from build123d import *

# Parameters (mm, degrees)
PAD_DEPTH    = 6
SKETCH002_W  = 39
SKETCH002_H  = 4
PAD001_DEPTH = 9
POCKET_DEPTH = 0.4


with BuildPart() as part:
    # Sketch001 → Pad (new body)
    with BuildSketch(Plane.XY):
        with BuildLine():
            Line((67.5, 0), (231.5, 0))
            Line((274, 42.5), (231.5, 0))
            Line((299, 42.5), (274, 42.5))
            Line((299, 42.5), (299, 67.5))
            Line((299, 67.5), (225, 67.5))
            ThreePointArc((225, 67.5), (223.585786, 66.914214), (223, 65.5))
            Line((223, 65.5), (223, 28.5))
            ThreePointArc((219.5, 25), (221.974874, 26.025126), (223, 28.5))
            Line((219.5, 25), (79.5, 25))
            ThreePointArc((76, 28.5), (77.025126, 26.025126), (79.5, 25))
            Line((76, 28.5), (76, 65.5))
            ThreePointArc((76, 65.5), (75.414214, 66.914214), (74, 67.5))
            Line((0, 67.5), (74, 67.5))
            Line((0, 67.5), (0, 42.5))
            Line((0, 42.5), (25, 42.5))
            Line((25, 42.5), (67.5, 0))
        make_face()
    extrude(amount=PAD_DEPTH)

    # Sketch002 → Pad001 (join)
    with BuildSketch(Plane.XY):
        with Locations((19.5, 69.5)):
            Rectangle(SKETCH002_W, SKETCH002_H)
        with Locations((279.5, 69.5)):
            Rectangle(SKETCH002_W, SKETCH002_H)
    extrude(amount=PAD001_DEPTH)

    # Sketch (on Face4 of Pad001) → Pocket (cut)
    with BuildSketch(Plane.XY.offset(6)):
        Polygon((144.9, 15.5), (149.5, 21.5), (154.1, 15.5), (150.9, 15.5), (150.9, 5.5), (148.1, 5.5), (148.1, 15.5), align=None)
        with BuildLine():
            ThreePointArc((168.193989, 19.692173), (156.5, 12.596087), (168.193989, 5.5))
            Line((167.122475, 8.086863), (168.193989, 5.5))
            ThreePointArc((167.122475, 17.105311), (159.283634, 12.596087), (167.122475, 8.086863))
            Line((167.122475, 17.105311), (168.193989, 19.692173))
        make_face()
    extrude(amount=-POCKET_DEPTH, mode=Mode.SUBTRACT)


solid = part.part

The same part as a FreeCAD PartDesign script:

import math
import FreeCAD as App
import Part
import Sketcher
Q = App.Units.Quantity


def add_polygon(sketch, points):
    """Adds a closed chain of lines whose ends are joined by coincident constraints."""
    first, n = sketch.GeometryCount, len(points)
    for a, b in zip(points, points[1:] + points[:1]):
        sketch.addGeometry(Part.LineSegment(App.Vector(*a, 0), App.Vector(*b, 0)), False)
    for i in range(n):
        sketch.addConstraint(Sketcher.Constraint("Coincident", first + i, 2, first + (i + 1) % n, 1))

doc = App.newDocument("Part")
body = doc.addObject("PartDesign::Body", "Body")

# Sketch on XY plane
sketch1 = body.newObject("Sketcher::SketchObject", "Sketch")
sketch1.AttachmentSupport = (doc.getObject("XY_Plane"), [""])
sketch1.MapMode = "FlatFace"
sketch1.addGeometry([
    Part.LineSegment(App.Vector(67.5, 0, 0), App.Vector(231.5, 0, 0)),  # 0
    Part.LineSegment(App.Vector(231.5, 0, 0), App.Vector(274, 42.5, 0)),  # 1
    Part.LineSegment(App.Vector(274, 42.5, 0), App.Vector(299, 42.5, 0)),  # 2
    Part.LineSegment(App.Vector(299, 42.5, 0), App.Vector(299, 67.5, 0)),  # 3
    Part.LineSegment(App.Vector(299, 67.5, 0), App.Vector(225, 67.5, 0)),  # 4
    Part.ArcOfCircle(Part.Circle(App.Vector(225, 65.5, 0), App.Vector(0, 0, 1), 2), math.radians(90), math.radians(180)),  # 5
    Part.LineSegment(App.Vector(223, 65.5, 0), App.Vector(223, 28.5, 0)),  # 6
    Part.ArcOfCircle(Part.Circle(App.Vector(219.5, 28.5, 0), App.Vector(0, 0, 1), 3.5), math.radians(-90), math.radians(0)),  # 7
    Part.LineSegment(App.Vector(219.5, 25, 0), App.Vector(79.5, 25, 0)),  # 8
    Part.ArcOfCircle(Part.Circle(App.Vector(79.5, 28.5, 0), App.Vector(0, 0, 1), 3.5), math.radians(180), math.radians(270)),  # 9
    Part.LineSegment(App.Vector(76, 28.5, 0), App.Vector(76, 65.5, 0)),  # 10
    Part.ArcOfCircle(Part.Circle(App.Vector(74, 65.5, 0), App.Vector(0, 0, 1), 2), math.radians(0), math.radians(90)),  # 11
    Part.LineSegment(App.Vector(74, 67.5, 0), App.Vector(0, 67.5, 0)),  # 12
    Part.LineSegment(App.Vector(0, 67.5, 0), App.Vector(0, 42.5, 0)),  # 13
    Part.LineSegment(App.Vector(0, 42.5, 0), App.Vector(25, 42.5, 0)),  # 14
    Part.LineSegment(App.Vector(25, 42.5, 0), App.Vector(67.5, 0, 0)),  # 15
], False)
sketch1.addConstraint([
    Sketcher.Constraint("Coincident", 0, 2, 1, 1),
    Sketcher.Constraint("Coincident", 1, 2, 2, 1),
    Sketcher.Constraint("Coincident", 2, 2, 3, 1),
    Sketcher.Constraint("Coincident", 3, 2, 4, 1),
    Sketcher.Constraint("Tangent", 4, 2, 5, 1),
    Sketcher.Constraint("Tangent", 5, 2, 6, 1),
    Sketcher.Constraint("Tangent", 6, 2, 7, 2),
    Sketcher.Constraint("Tangent", 7, 1, 8, 1),
    Sketcher.Constraint("Tangent", 8, 2, 9, 2),
    Sketcher.Constraint("Tangent", 9, 1, 10, 1),
    Sketcher.Constraint("Tangent", 10, 2, 11, 1),
    Sketcher.Constraint("Tangent", 11, 2, 12, 1),
    Sketcher.Constraint("Coincident", 12, 2, 13, 1),
    Sketcher.Constraint("Coincident", 13, 2, 14, 1),
    Sketcher.Constraint("Coincident", 14, 2, 15, 1),
    Sketcher.Constraint("Coincident", 15, 2, 0, 1),
    Sketcher.Constraint("Horizontal", 0),
    Sketcher.Constraint("Horizontal", 2),
    Sketcher.Constraint("Vertical", 3),
    Sketcher.Constraint("Horizontal", 4),
    Sketcher.Constraint("Vertical", 6),
    Sketcher.Constraint("Horizontal", 8),
    Sketcher.Constraint("Vertical", 10),
    Sketcher.Constraint("Horizontal", 12),
    Sketcher.Constraint("Vertical", 13),
    Sketcher.Constraint("Horizontal", 14),
    Sketcher.Constraint("Equal", 7, 9),
    Sketcher.Constraint("Equal", 5, 11),
    Sketcher.Constraint("PointOnObject", 0, 2, -1),
    Sketcher.Constraint("PointOnObject", 12, 2, -2),
    Sketcher.Constraint("Perpendicular", 1, 15),
    Sketcher.Constraint("Horizontal", 5, 3, 11, 3),
    Sketcher.Constraint("Horizontal", 2, 2, 13, 2),
    Sketcher.Constraint("Equal", 4, 12),
    Sketcher.Constraint("Equal", 2, 14),
    Sketcher.Constraint("Equal", 14, 3),
    Sketcher.Constraint("Equal", 1, 15),
    Sketcher.Constraint("Radius", 5, 1.999999),
    Sketcher.Constraint("Radius", 7, 3.499999),
    Sketcher.Constraint("DistanceX", 0, 1, 0, 2, 164.0),
    Sketcher.Constraint("DistanceX", 2, 1, 2, 2, 25.0),
    Sketcher.Constraint("DistanceX", 4, 2, 4, 1, 74.0),
    Sketcher.Constraint("DistanceX", 8, 2, 8, 1, 140.0),
    Sketcher.Constraint("DistanceY", 6, 2, 6, 1, 37.0),
])
pad1 = body.newObject("PartDesign::Pad", "Pad")
pad1.Profile = sketch1
pad1.Length = 6

# Sketch on XY plane
sketch2 = body.newObject("Sketcher::SketchObject", "Sketch001")
sketch2.AttachmentSupport = (doc.getObject("XY_Plane"), [""])
sketch2.MapMode = "FlatFace"
add_polygon(sketch2, [(0, 71.5), (0, 67.5), (39, 67.5), (39, 71.5)])  # lines 0-3
add_polygon(sketch2, [(260, 71.5), (260, 67.5), (299, 67.5), (299, 71.5)])  # lines 4-7
sketch2.addConstraint([
    Sketcher.Constraint("Vertical", 0),
    Sketcher.Constraint("Horizontal", 1),
    Sketcher.Constraint("Vertical", 2),
    Sketcher.Constraint("Horizontal", 3),
    Sketcher.Constraint("Vertical", 4),
    Sketcher.Constraint("Horizontal", 5),
    Sketcher.Constraint("Vertical", 6),
    Sketcher.Constraint("Horizontal", 7),
    Sketcher.Constraint("PointOnObject", 0, 2, -2),
    Sketcher.Constraint("Horizontal", 1, 2, 4, 2),
    Sketcher.Constraint("Horizontal", 3, 2, 6, 2),
    Sketcher.Constraint("Equal", 3, 5),
    Sketcher.Constraint("DistanceX", 1, 1, 1, 2, 39.0),
    Sketcher.Constraint("DistanceY", 0, 2, 0, 1, 4.0),
    Sketcher.Constraint("DistanceX", -1, 1, 4, 2, 260.0),
    Sketcher.Constraint("DistanceY", -1, 1, 0, 2, 67.5),
])
pad2 = body.newObject("PartDesign::Pad", "Pad001")
pad2.Profile = sketch2
pad2.Length = 9

# Sketch on XY plane
sketch3 = body.newObject("Sketcher::SketchObject", "Sketch002")
sketch3.AttachmentSupport = (doc.getObject("XY_Plane"), [""])
sketch3.MapMode = "FlatFace"
sketch3.AttachmentOffset = App.Placement(App.Vector(0, 0, 6), App.Rotation())
add_polygon(sketch3, [(149.5, 21.5), (144.9, 15.5), (148.1, 15.5), (148.1, 5.5), (150.9, 5.5), (150.9, 15.5), (154.1, 15.5)])  # lines 0-6
sketch3.addGeometry(Part.ArcOfCircle(Part.Circle(App.Vector(164.5, 12.6, 0), App.Vector(0, 0, 1), 8), math.radians(62), math.radians(298)), False)  # 7
sketch3.addGeometry(Part.LineSegment(App.Vector(168.2, 5.5, 0), App.Vector(167.1, 8.1, 0)), False)  # 8
sketch3.addGeometry(Part.ArcOfCircle(Part.Circle(App.Vector(164.5, 12.6, 0), App.Vector(0, 0, 1), 5.2), math.radians(60), math.radians(300)), False)  # 9
sketch3.addGeometry(Part.LineSegment(App.Vector(167.1, 17.1, 0), App.Vector(168.2, 19.7, 0)), False)  # 10
sketch3.addConstraint([
    Sketcher.Constraint("Coincident", 7, 2, 8, 1),
    Sketcher.Constraint("Coincident", 8, 2, 9, 2),
    Sketcher.Constraint("Coincident", 9, 1, 10, 1),
    Sketcher.Constraint("Coincident", 10, 2, 7, 1),
    Sketcher.Constraint("Horizontal", 1),
    Sketcher.Constraint("Vertical", 2),
    Sketcher.Constraint("Horizontal", 3),
    Sketcher.Constraint("Vertical", 4),
    Sketcher.Constraint("Horizontal", 5),
    Sketcher.Constraint("Coincident", 9, 3, 7, 3),
    Sketcher.Constraint("Horizontal", 1, 2, 4, 2),
    Sketcher.Constraint("Horizontal", 3, 2, 7, 2),
    Sketcher.Constraint("Vertical", 8, 2, 9, 1),
    Sketcher.Constraint("Vertical", 7, 2, 10, 2),
    Sketcher.Constraint("Equal", 1, 5),
    Sketcher.Constraint("Equal", 0, 6),
    Sketcher.Constraint("Radius", 7, 8.0),
    Sketcher.Constraint("DistanceY", 2, 2, 2, 1, 10.0),
    Sketcher.Constraint("DistanceX", 1, 1, 1, 2, 3.2),
    Sketcher.Constraint("DistanceX", 3, 1, 3, 2, 2.8),
    Sketcher.Constraint("Angle", 8, Q("112.500005 deg")),
    Sketcher.Constraint("DistanceY", 1, 2, 6, 2, 6.0),
    Sketcher.Constraint("Distance", 8, 2.8),
    Sketcher.Constraint("DistanceX", -1, 1, 7, 3, 164.5),
    Sketcher.Constraint("DistanceX", -1, 1, 0, 2, 144.9),
    Sketcher.Constraint("DistanceY", -1, 1, 0, 2, 15.5),
    Sketcher.Constraint("Radius", 9, 5.216366),
])
pocket1 = body.newObject("PartDesign::Pocket", "Pocket")
pocket1.Profile = sketch3
pocket1.Length = 0.4

doc.recompute()
